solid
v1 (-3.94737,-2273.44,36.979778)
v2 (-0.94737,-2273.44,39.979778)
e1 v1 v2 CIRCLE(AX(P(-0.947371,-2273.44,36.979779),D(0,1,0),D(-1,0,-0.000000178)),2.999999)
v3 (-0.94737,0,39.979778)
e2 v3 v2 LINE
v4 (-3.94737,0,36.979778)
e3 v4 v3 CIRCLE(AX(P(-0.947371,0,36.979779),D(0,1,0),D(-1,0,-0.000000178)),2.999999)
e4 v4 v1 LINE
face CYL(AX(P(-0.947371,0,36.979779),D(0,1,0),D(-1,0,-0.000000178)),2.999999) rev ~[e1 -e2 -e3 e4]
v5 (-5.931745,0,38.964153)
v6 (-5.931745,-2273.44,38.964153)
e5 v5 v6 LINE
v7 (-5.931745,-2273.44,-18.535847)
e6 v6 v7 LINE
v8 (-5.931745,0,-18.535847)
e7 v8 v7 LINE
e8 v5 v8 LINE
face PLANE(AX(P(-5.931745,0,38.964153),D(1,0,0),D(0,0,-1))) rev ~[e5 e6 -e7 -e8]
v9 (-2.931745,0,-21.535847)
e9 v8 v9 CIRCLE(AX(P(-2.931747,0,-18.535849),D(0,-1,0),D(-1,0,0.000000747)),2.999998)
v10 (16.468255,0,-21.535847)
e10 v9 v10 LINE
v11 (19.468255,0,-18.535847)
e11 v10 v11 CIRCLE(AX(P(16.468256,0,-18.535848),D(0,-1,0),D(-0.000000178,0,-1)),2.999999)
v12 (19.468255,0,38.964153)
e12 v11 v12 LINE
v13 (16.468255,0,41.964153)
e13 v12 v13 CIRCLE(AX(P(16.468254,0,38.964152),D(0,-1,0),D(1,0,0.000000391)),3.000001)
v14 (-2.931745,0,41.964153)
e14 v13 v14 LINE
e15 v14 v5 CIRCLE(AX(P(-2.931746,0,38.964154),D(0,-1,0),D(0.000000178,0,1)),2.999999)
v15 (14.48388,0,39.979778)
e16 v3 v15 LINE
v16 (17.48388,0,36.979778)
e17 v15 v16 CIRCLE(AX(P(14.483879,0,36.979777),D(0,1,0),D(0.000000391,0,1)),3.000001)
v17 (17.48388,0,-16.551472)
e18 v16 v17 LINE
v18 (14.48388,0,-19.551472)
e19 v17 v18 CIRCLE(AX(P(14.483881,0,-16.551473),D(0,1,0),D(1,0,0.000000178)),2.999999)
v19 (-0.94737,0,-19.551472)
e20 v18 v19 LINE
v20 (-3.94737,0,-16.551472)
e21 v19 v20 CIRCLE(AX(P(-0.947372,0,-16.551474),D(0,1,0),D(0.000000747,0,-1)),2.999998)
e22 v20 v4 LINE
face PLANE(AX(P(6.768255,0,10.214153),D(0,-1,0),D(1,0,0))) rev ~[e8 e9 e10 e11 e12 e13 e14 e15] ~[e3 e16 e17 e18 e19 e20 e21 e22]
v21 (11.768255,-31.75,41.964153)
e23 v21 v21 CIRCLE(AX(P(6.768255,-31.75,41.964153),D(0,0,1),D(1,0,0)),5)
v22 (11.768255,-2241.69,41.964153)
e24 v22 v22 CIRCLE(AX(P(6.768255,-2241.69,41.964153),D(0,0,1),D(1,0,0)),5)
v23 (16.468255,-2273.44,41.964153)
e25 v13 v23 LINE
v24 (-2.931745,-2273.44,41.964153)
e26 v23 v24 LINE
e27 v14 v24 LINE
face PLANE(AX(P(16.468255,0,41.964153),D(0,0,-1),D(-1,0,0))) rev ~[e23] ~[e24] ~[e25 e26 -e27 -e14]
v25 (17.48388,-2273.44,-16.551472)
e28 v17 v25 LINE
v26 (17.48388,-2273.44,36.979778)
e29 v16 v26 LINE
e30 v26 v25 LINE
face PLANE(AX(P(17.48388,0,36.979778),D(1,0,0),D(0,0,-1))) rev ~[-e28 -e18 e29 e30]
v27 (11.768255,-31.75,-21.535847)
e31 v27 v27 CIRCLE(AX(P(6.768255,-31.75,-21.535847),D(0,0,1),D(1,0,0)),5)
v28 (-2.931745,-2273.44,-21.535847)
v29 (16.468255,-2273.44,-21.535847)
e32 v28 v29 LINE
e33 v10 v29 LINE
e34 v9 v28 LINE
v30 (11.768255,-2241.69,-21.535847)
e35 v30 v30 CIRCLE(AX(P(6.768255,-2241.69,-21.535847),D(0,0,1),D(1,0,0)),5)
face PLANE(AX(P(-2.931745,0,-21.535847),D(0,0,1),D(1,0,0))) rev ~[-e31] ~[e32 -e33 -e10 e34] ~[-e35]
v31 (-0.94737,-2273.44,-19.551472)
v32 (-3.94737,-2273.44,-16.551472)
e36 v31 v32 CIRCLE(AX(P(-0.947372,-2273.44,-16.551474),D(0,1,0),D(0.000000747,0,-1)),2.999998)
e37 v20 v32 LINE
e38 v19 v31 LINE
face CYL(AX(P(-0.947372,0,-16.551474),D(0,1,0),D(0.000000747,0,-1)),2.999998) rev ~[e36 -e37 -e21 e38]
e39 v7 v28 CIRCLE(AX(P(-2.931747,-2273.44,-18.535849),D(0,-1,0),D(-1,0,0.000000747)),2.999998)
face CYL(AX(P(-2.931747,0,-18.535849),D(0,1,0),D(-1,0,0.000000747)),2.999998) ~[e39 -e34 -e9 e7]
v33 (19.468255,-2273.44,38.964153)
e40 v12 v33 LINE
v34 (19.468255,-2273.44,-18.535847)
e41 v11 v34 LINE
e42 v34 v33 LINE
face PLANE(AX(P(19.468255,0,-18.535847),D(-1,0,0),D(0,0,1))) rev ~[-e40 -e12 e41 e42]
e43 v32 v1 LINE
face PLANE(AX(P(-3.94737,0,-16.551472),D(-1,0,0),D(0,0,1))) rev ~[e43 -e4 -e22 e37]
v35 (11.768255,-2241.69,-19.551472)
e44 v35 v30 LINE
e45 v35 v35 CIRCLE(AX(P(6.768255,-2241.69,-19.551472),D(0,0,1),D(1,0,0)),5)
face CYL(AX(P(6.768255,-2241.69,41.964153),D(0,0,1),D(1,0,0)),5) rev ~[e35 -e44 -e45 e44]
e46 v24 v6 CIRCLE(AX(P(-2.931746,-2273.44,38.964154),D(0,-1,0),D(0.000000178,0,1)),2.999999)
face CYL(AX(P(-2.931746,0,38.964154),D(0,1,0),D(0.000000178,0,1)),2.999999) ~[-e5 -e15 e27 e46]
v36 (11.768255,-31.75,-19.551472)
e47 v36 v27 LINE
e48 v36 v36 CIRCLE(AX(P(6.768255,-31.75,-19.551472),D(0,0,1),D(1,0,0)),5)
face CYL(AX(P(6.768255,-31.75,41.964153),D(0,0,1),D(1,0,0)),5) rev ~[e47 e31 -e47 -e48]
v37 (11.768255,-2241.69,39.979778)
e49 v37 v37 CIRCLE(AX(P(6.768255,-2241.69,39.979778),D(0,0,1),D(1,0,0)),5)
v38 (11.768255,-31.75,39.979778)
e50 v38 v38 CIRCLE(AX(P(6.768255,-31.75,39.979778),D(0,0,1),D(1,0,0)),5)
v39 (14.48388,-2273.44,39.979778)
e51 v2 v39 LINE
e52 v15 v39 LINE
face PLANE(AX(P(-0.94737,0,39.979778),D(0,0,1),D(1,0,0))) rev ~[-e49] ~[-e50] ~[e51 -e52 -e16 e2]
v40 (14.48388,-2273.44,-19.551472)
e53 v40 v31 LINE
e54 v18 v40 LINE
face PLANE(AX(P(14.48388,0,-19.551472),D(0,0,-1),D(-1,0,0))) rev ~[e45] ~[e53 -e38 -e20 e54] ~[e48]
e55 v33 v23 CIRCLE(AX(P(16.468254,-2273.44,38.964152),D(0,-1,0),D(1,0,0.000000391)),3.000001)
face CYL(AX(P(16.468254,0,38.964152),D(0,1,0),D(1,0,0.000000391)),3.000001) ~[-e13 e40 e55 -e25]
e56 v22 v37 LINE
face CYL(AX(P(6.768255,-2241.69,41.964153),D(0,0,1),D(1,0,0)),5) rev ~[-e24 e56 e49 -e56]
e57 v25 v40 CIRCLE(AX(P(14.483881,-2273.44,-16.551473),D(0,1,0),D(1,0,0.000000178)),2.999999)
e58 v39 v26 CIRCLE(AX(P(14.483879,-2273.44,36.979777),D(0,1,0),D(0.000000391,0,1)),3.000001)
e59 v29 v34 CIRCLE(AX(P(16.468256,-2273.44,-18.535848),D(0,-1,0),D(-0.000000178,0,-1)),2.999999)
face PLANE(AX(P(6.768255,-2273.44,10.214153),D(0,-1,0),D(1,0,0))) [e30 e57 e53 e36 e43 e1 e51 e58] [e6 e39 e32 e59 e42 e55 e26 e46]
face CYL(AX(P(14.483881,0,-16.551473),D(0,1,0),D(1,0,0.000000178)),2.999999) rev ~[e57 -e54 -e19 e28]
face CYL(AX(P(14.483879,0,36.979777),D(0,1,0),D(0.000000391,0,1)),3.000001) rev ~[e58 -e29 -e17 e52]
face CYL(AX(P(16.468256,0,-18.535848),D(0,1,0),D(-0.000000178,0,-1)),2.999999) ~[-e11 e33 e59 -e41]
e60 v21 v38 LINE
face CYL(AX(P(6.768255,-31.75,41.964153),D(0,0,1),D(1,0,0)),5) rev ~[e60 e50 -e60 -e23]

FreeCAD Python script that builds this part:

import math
import FreeCAD as App
import Part
import Sketcher
Q = App.Units.Quantity

doc = App.newDocument("Part")
body = doc.addObject("PartDesign::Body", "Body")

sketch1 = doc.addObject("Sketcher::SketchObject", "Sketch")
body.addObject(sketch1)
sketch1.AttachmentSupport = (doc.XZ_Plane, [""])
sketch1.MapMode = "FlatFace"
sketch1.addGeometry([
    Part.LineSegment(App.Vector(16.468255, 41.964153, 0), App.Vector(-2.931745, 41.964153, 0)),
    Part.ArcOfCircle(Part.Circle(App.Vector(-2.931746, 38.964154, 0), App.Vector(0, 0, 1), 2.999999), math.radians(89.99999), math.radians(180.00001)),
    Part.LineSegment(App.Vector(-5.931745, 38.964153, 0), App.Vector(-5.931745, -18.535847, 0)),
    Part.ArcOfCircle(Part.Circle(App.Vector(-2.931747, -18.535849, 0), App.Vector(0, 0, 1), 2.999998), math.radians(179.999957), math.radians(270.000043)),
    Part.LineSegment(App.Vector(-2.931745, -21.535847, 0), App.Vector(16.468255, -21.535847, 0)),
    Part.ArcOfCircle(Part.Circle(App.Vector(16.468256, -18.535848, 0), App.Vector(0, 0, 1), 2.999999), math.radians(-90.00001), math.radians(0.00001)),
    Part.LineSegment(App.Vector(19.468255, -18.535847, 0), App.Vector(19.468255, 38.964153, 0)),
    Part.ArcOfCircle(Part.Circle(App.Vector(16.468254, 38.964152, 0), App.Vector(0, 0, 1), 3.000001), math.radians(0.000022), math.radians(89.999978)),
    Part.LineSegment(App.Vector(-3.94737, -16.551472, 0), App.Vector(-3.94737, 36.979778, 0)),
    Part.ArcOfCircle(Part.Circle(App.Vector(-0.947371, 36.979779, 0), App.Vector(0, 0, 1), 2.999999), math.radians(89.99999), math.radians(180.00001)),
    Part.LineSegment(App.Vector(-0.94737, 39.979778, 0), App.Vector(14.48388, 39.979778, 0)),
    Part.ArcOfCircle(Part.Circle(App.Vector(14.483879, 36.979777, 0), App.Vector(0, 0, 1), 3.000001), math.radians(0.000022), math.radians(89.999978)),
    Part.LineSegment(App.Vector(17.48388, 36.979778, 0), App.Vector(17.48388, -16.551472, 0)),
    Part.ArcOfCircle(Part.Circle(App.Vector(14.483881, -16.551473, 0), App.Vector(0, 0, 1), 2.999999), math.radians(-90.00001), math.radians(0.00001)),
    Part.LineSegment(App.Vector(14.48388, -19.551472, 0), App.Vector(-0.94737, -19.551472, 0)),
    Part.ArcOfCircle(Part.Circle(App.Vector(-0.947372, -16.551474, 0), App.Vector(0, 0, 1), 2.999998), math.radians(179.999957), math.radians(270.000043)),
], False)
sketch1.addConstraint([
    Sketcher.Constraint("Tangent", 0, 2, 1, 1),
    Sketcher.Constraint("Tangent", 1, 2, 2, 1),
    Sketcher.Constraint("Tangent", 2, 2, 3, 1),
    Sketcher.Constraint("Tangent", 3, 2, 4, 1),
    Sketcher.Constraint("Tangent", 4, 2, 5, 1),
    Sketcher.Constraint("Tangent", 5, 2, 6, 1),
    Sketcher.Constraint("Tangent", 6, 2, 7, 1),
    Sketcher.Constraint("Tangent", 7, 2, 0, 1),
    Sketcher.Constraint("Tangent", 8, 2, 9, 2),
    Sketcher.Constraint("Tangent", 9, 1, 10, 1),
    Sketcher.Constraint("Tangent", 10, 2, 11, 2),
    Sketcher.Constraint("Tangent", 11, 1, 12, 1),
    Sketcher.Constraint("Tangent", 12, 2, 13, 2),
    Sketcher.Constraint("Tangent", 13, 1, 14, 1),
    Sketcher.Constraint("Tangent", 14, 2, 15, 2),
    Sketcher.Constraint("Tangent", 15, 1, 8, 1),
    Sketcher.Constraint("Horizontal", 0),
    Sketcher.Constraint("Vertical", 2),
    Sketcher.Constraint("Horizontal", 4),
    Sketcher.Constraint("Vertical", 6),
    Sketcher.Constraint("Vertical", 8),
    Sketcher.Constraint("Horizontal", 10),
    Sketcher.Constraint("Vertical", 12),
    Sketcher.Constraint("Horizontal", 14),
    Sketcher.Constraint("Equal", 1, 3),
    Sketcher.Constraint("Equal", 3, 5),
    Sketcher.Constraint("Equal", 5, 7),
    Sketcher.Constraint("Equal", 7, 9),
    Sketcher.Constraint("Equal", 9, 11),
    Sketcher.Constraint("Equal", 11, 13),
    Sketcher.Constraint("Equal", 13, 15),
    Sketcher.Constraint("Radius", 1, Q("2.999999 mm")),
    Sketcher.Constraint("DistanceX", 0, 2, 0, 1, Q("19.4 mm")),
    Sketcher.Constraint("DistanceY", 2, 2, 2, 1, Q("57.5 mm")),
    Sketcher.Constraint("DistanceX", 10, 1, 10, 2, Q("15.43125 mm")),
    Sketcher.Constraint("DistanceY", 8, 1, 8, 2, Q("53.53125 mm")),
    Sketcher.Constraint("DistanceY", 3, 3, -1, 1, Q("18.535849 mm")),
    Sketcher.Constraint("DistanceX", 9, 3, -1, 1, Q("0.947371 mm")),
    Sketcher.Constraint("DistanceY", -1, 1, 9, 3, Q("36.979779 mm")),
    Sketcher.Constraint("DistanceX", 1, 3, -1, 1, Q("2.931746 mm")),
])
pad1 = doc.addObject("PartDesign::Pad", "Pad")
body.addObject(pad1)
pad1.Profile = sketch1
pad1.Length = 2273.44

sketch2 = doc.addObject("Sketcher::SketchObject", "Sketch001")
body.addObject(sketch2)
sketch2.AttachmentSupport = (doc.XY_Plane, [""])
sketch2.MapMode = "FlatFace"
sketch2.AttachmentOffset = App.Placement(App.Vector(0, 0, 41.964153), App.Rotation())
sketch2.addGeometry([
    Part.Circle(App.Vector(6.768255, -2241.69, 0), App.Vector(0, 0, 1), 5),
    Part.Circle(App.Vector(6.768255, -31.75, 0), App.Vector(0, 0, 1), 5),
], False)
sketch2.addConstraint([
    Sketcher.Constraint("Equal", 0, 1),
    Sketcher.Constraint("Vertical", 0, 3, 1, 3),
    Sketcher.Constraint("Diameter", 0, Q("10 mm")),
    Sketcher.Constraint("DistanceY", 0, 3, -1, 1, Q("2241.69 mm")),
    Sketcher.Constraint("DistanceY", 1, 3, -1, 1, Q("31.75 mm")),
    Sketcher.Constraint("DistanceX", -1, 1, 0, 3, Q("6.768255 mm")),
])
pocket1 = doc.addObject("PartDesign::Pocket", "Pocket")
body.addObject(pocket1)
pocket1.Profile = sketch2
pocket1.Type = "ThroughAll"

doc.recompute()
